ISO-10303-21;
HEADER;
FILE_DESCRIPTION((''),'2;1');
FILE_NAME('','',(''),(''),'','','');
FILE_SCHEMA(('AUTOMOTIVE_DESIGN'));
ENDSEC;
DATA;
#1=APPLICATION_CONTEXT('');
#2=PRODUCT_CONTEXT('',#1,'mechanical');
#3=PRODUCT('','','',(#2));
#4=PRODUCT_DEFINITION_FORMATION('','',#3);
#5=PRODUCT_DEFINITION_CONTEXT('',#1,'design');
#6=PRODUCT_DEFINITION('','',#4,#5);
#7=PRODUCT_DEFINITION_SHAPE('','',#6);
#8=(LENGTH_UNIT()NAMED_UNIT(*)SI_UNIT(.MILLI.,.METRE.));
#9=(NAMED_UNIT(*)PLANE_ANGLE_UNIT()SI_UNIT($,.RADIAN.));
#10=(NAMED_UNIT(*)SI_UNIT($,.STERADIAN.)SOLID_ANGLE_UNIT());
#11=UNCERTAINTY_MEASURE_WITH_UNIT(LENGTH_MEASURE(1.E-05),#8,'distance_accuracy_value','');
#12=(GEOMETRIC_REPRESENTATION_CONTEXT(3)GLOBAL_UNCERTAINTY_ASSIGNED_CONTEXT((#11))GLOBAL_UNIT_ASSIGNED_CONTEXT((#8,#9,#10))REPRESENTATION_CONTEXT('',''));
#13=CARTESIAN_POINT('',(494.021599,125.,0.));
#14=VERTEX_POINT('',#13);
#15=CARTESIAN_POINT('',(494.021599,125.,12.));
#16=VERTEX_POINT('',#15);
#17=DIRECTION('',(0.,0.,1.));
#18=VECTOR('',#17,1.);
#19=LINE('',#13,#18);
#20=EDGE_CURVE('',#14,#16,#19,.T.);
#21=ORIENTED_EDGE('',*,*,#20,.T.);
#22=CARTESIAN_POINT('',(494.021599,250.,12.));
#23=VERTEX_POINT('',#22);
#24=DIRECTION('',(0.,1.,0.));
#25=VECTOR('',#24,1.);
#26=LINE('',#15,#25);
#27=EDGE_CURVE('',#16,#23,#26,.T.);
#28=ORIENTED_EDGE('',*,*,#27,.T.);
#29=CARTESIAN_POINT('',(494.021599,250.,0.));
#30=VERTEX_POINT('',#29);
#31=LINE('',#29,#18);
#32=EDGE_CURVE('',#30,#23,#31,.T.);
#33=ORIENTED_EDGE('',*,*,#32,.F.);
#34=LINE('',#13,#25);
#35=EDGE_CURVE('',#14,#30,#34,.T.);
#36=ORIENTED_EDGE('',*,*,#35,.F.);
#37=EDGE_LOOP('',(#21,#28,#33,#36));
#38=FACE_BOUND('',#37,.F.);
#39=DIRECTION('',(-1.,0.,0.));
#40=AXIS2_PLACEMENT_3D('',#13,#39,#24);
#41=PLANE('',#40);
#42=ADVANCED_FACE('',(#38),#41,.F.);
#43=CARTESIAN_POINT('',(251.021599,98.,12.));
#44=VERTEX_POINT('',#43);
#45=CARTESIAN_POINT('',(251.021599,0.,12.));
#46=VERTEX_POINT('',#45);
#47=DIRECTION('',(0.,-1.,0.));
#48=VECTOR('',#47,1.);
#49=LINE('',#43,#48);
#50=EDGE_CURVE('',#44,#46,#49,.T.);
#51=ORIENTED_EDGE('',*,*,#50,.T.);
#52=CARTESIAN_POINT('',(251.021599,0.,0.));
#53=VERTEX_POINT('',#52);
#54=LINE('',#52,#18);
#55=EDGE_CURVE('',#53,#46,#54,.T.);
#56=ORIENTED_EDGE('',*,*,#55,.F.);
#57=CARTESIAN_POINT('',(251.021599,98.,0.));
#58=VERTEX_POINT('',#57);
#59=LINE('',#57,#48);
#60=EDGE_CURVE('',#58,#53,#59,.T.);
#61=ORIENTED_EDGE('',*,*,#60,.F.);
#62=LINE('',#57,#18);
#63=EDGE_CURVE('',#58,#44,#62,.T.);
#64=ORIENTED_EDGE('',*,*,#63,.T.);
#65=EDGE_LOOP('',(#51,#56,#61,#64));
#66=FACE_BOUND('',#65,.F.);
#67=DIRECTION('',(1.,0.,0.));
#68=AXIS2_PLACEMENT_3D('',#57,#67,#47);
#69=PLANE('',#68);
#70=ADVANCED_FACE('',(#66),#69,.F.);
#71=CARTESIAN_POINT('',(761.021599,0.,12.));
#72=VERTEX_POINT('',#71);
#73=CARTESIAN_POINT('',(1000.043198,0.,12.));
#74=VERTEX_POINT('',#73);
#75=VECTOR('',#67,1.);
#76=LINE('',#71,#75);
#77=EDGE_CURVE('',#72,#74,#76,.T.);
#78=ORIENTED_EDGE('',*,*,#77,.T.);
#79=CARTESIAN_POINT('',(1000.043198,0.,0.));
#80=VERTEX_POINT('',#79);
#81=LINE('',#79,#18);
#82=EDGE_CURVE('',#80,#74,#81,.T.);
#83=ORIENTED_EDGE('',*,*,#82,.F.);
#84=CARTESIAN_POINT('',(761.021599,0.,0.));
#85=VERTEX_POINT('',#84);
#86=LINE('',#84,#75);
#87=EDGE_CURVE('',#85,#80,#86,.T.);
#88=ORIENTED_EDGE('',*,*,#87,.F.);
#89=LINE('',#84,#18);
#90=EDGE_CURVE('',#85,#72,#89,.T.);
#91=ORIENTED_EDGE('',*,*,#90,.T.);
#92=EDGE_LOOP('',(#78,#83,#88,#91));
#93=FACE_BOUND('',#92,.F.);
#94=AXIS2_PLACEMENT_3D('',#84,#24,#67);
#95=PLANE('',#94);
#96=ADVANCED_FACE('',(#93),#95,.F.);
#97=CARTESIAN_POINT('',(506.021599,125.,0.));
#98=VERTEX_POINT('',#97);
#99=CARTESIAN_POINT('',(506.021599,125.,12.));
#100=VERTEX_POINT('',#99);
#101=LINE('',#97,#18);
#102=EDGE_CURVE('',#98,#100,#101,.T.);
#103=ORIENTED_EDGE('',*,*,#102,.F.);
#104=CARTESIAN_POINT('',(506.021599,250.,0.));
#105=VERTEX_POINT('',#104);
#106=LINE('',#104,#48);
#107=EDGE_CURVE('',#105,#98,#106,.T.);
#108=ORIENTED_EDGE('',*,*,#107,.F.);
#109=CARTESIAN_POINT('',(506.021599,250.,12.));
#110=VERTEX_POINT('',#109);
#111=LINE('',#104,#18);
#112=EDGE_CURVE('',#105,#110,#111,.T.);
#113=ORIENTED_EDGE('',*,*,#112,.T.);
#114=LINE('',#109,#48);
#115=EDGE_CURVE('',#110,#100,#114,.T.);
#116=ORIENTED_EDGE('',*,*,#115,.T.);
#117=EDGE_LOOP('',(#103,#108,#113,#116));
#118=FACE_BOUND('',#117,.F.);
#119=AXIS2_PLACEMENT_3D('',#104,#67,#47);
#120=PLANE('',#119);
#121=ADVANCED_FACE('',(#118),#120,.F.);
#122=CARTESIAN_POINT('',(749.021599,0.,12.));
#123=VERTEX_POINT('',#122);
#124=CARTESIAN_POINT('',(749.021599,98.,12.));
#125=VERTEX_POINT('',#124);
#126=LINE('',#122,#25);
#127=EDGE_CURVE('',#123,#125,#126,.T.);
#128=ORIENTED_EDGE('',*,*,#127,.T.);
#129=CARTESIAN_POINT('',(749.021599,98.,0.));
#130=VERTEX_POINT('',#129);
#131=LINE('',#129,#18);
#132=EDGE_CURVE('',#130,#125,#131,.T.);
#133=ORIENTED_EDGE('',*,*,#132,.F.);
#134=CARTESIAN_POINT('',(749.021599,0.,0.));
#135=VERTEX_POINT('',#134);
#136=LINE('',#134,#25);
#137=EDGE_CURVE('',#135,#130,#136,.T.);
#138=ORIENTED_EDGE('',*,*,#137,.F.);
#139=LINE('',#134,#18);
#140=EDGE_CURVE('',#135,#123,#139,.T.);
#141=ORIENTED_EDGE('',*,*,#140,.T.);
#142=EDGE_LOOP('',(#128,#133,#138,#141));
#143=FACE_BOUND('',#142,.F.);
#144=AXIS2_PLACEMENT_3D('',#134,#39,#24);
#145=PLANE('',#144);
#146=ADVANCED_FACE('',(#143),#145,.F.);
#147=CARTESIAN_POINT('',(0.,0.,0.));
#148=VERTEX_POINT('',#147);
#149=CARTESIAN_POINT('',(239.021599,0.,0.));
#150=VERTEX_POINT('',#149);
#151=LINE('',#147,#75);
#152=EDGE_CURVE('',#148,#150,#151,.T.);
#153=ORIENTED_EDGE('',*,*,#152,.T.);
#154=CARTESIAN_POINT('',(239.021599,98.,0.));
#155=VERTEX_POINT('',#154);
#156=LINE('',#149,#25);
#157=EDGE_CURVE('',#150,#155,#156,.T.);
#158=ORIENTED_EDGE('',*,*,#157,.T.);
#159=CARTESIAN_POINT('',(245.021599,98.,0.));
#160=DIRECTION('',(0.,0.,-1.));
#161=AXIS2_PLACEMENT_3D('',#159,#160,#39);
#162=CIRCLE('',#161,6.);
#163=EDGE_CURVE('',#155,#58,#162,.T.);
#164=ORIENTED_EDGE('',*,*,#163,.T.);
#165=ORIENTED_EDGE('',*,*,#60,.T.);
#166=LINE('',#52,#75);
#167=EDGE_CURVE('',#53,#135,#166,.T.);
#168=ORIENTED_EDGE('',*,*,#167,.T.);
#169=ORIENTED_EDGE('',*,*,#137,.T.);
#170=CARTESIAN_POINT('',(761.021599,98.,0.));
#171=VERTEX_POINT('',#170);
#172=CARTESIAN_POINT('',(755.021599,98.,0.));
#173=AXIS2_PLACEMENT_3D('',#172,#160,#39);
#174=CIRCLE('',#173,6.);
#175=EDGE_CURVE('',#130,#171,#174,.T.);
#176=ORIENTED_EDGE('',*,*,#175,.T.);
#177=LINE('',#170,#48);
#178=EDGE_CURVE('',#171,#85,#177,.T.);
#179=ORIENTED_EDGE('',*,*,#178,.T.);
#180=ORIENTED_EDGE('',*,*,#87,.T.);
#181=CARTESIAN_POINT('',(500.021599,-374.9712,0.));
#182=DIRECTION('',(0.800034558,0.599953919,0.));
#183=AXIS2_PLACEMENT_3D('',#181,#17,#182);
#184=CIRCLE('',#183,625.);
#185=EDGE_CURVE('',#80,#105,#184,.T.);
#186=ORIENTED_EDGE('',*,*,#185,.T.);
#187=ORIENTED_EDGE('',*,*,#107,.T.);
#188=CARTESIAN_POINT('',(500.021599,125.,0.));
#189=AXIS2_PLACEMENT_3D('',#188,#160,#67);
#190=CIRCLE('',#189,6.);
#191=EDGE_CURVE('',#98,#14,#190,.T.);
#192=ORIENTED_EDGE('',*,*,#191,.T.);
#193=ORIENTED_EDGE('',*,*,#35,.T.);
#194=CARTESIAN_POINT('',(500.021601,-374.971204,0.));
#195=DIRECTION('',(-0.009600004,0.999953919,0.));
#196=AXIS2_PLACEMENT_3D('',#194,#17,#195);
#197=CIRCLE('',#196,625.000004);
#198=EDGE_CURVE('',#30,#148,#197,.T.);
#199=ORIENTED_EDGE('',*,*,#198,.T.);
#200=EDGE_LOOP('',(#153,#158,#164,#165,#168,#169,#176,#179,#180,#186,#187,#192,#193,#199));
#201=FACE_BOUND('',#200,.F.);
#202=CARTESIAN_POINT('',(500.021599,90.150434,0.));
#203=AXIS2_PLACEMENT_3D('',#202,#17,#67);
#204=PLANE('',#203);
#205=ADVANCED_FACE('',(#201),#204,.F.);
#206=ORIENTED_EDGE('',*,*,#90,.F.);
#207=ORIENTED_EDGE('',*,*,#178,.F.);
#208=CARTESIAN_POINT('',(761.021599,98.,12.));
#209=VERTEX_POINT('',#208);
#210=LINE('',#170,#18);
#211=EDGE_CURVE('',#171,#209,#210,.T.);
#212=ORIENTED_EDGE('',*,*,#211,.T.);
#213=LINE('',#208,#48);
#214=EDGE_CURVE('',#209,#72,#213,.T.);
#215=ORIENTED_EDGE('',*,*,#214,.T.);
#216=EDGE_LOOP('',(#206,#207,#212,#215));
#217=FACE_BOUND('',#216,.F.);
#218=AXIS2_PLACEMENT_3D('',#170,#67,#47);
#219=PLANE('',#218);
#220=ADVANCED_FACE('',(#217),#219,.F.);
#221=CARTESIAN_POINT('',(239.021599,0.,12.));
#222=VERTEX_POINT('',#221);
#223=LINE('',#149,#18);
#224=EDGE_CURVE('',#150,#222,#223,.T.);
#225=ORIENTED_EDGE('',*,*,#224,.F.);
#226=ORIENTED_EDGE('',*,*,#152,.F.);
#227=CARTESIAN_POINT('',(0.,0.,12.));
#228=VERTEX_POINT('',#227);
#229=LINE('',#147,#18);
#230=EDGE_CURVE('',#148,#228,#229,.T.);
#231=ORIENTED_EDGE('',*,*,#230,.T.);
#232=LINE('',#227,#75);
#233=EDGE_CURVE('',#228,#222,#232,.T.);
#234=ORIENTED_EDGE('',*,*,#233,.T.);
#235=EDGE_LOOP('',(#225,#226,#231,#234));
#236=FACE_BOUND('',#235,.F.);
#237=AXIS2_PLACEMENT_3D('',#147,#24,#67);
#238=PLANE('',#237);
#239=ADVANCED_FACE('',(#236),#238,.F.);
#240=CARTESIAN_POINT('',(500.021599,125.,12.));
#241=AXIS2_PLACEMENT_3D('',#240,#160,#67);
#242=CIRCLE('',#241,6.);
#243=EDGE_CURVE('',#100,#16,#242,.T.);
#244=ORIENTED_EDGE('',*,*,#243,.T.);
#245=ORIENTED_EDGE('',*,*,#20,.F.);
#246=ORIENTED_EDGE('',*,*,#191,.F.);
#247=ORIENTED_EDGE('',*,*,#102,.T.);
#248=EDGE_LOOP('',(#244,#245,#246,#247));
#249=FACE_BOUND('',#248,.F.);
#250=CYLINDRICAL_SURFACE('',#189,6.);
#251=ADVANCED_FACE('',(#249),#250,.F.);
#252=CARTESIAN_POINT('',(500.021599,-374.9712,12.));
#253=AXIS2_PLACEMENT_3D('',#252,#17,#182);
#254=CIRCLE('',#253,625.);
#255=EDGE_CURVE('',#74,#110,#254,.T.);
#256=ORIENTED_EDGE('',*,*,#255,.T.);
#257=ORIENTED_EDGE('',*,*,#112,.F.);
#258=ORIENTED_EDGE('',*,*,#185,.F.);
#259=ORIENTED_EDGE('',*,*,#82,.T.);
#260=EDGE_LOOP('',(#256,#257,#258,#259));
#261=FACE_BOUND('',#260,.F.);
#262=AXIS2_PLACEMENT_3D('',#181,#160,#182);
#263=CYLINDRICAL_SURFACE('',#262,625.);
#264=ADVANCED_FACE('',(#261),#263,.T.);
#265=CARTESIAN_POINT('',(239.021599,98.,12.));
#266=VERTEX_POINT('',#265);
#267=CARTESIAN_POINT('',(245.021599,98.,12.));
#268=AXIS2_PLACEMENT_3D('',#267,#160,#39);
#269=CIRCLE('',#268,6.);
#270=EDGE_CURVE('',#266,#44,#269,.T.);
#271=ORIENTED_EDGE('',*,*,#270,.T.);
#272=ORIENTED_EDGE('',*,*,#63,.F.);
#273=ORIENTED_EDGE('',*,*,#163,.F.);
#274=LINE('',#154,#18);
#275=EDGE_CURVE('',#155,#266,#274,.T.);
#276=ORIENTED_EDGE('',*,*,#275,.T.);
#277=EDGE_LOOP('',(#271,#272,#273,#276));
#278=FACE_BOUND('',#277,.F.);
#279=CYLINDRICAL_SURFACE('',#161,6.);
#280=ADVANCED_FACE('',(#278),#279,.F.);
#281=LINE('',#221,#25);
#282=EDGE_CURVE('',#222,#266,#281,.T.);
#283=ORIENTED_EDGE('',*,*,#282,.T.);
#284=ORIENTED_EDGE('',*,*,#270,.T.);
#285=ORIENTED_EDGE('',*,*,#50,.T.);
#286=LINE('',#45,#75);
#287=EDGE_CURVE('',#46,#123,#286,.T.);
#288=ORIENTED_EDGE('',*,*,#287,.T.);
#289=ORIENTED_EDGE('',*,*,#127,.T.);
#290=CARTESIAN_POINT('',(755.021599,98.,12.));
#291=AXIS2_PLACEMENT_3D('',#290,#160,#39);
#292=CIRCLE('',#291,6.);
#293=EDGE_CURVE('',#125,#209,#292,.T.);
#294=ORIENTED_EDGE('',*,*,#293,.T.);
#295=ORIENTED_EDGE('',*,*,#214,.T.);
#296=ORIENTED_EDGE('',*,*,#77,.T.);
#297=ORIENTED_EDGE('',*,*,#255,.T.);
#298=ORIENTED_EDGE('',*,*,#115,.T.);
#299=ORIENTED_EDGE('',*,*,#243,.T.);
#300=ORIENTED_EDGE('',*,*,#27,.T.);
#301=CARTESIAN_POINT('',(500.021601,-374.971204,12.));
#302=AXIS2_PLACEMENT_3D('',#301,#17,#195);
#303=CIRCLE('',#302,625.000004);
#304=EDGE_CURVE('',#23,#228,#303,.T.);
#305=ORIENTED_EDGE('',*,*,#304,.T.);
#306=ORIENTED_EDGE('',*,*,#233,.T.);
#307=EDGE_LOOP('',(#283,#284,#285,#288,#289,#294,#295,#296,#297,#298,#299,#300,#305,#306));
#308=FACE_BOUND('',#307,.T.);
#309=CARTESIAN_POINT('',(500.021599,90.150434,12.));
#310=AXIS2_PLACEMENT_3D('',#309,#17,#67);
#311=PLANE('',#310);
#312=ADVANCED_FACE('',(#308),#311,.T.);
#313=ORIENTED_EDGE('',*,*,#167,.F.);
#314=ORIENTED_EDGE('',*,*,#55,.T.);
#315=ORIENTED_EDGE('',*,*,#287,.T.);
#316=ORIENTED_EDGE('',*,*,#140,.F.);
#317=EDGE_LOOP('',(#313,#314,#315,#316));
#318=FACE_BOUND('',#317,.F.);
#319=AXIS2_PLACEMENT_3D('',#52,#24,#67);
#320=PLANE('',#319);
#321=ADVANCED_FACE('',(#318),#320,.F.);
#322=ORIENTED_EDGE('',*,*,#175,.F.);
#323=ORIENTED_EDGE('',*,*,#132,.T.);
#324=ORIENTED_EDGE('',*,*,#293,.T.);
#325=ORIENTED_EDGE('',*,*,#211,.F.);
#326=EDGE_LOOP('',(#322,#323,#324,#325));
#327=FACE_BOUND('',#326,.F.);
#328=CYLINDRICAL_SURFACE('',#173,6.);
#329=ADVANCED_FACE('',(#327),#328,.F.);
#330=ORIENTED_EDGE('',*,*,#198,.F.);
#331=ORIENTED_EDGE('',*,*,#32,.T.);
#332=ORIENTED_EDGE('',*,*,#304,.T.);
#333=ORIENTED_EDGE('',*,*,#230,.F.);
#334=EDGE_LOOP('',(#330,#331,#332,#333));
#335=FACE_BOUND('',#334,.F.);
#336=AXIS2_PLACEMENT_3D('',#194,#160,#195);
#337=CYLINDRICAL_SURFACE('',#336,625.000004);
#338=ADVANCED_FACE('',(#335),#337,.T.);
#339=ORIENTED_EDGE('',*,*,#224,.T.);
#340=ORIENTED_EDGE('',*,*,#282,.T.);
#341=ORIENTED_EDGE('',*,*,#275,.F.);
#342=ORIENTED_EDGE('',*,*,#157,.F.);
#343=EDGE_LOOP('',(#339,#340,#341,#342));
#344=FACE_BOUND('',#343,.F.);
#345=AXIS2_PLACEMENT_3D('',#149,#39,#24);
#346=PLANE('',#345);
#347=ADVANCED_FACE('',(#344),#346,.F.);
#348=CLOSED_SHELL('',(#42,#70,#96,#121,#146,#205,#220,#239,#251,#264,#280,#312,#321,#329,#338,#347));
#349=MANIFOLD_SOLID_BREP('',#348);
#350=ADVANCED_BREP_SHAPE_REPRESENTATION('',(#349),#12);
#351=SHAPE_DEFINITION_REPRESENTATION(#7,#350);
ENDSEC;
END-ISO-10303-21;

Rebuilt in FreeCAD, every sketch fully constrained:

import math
import FreeCAD as App
import Part
import Sketcher
from FreeCAD import Vector

doc = App.newDocument("Part")
params = doc.addObject("Spreadsheet::Sheet", "Params")
for row, (alias, value) in enumerate([
    ("sketch1_radius", "6 mm"),
    ("sketch1_radius2", "625 mm"),
    ("sketch1_width", "498 mm"),
    ("sketch1_height", "98 mm"),
    ("sketch1_height2", "125 mm"),
    ("pad1_length", "12 mm"),
], start=1):
    params.set(f"A{row}", alias)
    params.set(f"B{row}", "=" + value)
    params.setAlias(f"B{row}", alias)

body = doc.addObject("PartDesign::Body", "Body")

sketch1 = body.newObject("Sketcher::SketchObject", "Sketch")
sketch1.AttachmentSupport = (doc.getObject("XY_Plane"), [""])
sketch1.MapMode = "FlatFace"
sketch1.addGeometry([
    Part.ArcOfCircle(Part.Circle(Vector(500, -375, 0), Vector(0, 0, 1), 625), math.radians(91), math.radians(143)),
    Part.LineSegment(Vector(0, 0, 0), Vector(239, 0, 0)),
    Part.LineSegment(Vector(239, 0, 0), Vector(239, 98, 0)),
    Part.ArcOfCircle(Part.Circle(Vector(245, 98, 0), Vector(0, 0, 1), 6), math.radians(0), math.radians(180)),
    Part.LineSegment(Vector(251, 98, 0), Vector(251, 0, 0)),
    Part.LineSegment(Vector(251, 0, 0), Vector(749, 0, 0)),
    Part.LineSegment(Vector(749, 0, 0), Vector(749, 98, 0)),
    Part.ArcOfCircle(Part.Circle(Vector(755, 98, 0), Vector(0, 0, 1), 6), math.radians(0), math.radians(180)),
    Part.LineSegment(Vector(761, 98, 0), Vector(761, 0, 0)),
    Part.LineSegment(Vector(761, 0, 0), Vector(1000, 0, 0)),
    Part.ArcOfCircle(Part.Circle(Vector(500, -375, 0), Vector(0, 0, 1), 625), math.radians(37), math.radians(89)),
    Part.LineSegment(Vector(506, 250, 0), Vector(506, 125, 0)),
    Part.ArcOfCircle(Part.Circle(Vector(500, 125, 0), Vector(0, 0, 1), 6), math.radians(180), math.radians(360)),
    Part.LineSegment(Vector(494, 125, 0), Vector(494, 250, 0)),
], False)
sketch1.addConstraint([
    Sketcher.Constraint("Coincident", 0, 2, 1, 1),
    Sketcher.Constraint("Coincident", 1, 2, 2, 1),
    Sketcher.Constraint("Tangent", 2, 2, 3, 2),
    Sketcher.Constraint("Tangent", 3, 1, 4, 1),
    Sketcher.Constraint("Coincident", 4, 2, 5, 1),
    Sketcher.Constraint("Coincident", 5, 2, 6, 1),
    Sketcher.Constraint("Tangent", 6, 2, 7, 2),
    Sketcher.Constraint("Tangent", 7, 1, 8, 1),
    Sketcher.Constraint("Coincident", 8, 2, 9, 1),
    Sketcher.Constraint("Coincident", 9, 2, 10, 1),
    Sketcher.Constraint("Coincident", 10, 2, 11, 1),
    Sketcher.Constraint("Tangent", 11, 2, 12, 2),
    Sketcher.Constraint("Tangent", 12, 1, 13, 1),
    Sketcher.Constraint("Coincident", 13, 2, 0, 1),
    Sketcher.Constraint("Horizontal", 1),
    Sketcher.Constraint("Vertical", 2),
    Sketcher.Constraint("Vertical", 4),
    Sketcher.Constraint("Horizontal", 5),
    Sketcher.Constraint("Vertical", 6),
    Sketcher.Constraint("Vertical", 8),
    Sketcher.Constraint("Horizontal", 9),
    Sketcher.Constraint("Vertical", 11),
    Sketcher.Constraint("Vertical", 13),
    Sketcher.Constraint("Coincident", 10, 3, 0, 3),
    Sketcher.Constraint("Equal", 3, 7),
    Sketcher.Constraint("Equal", 7, 12),
    Sketcher.Constraint("PointOnObject", 1, 2, -1),
    Sketcher.Constraint("PointOnObject", 4, 2, -1),
    Sketcher.Constraint("PointOnObject", 8, 2, -1),
    Sketcher.Constraint("Horizontal", 3, 3, 7, 3),
    Sketcher.Constraint("Horizontal", 10, 2, 13, 2),
    Sketcher.Constraint("Vertical", 10, 3, 12, 3),
    Sketcher.Constraint("Equal", 1, 9),
    Sketcher.Constraint("Radius", 3, 6.0),
    Sketcher.Constraint("Radius", 10, 625.0),
    Sketcher.Constraint("DistanceX", 5, 1, 5, 2, 498.0),
    Sketcher.Constraint("DistanceY", 2, 1, 2, 2, 98.0),
    Sketcher.Constraint("DistanceY", 11, 2, 11, 1, 125.0),
    Sketcher.Constraint("DistanceY", -1, 1, 12, 3, 125.0),
    Sketcher.Constraint("DistanceX", -1, 1, 0, 3, 500.021601),
])
sketch1.setExpression("Constraints[33]", "Params.sketch1_radius")
sketch1.setExpression("Constraints[34]", "Params.sketch1_radius2")
sketch1.setExpression("Constraints[35]", "Params.sketch1_width")
sketch1.setExpression("Constraints[36]", "Params.sketch1_height")
sketch1.setExpression("Constraints[37]", "Params.sketch1_height2")
pad1 = body.newObject("PartDesign::Pad", "Pad")
pad1.Profile = sketch1
pad1.setExpression("Length", "Params.pad1_length")

doc.recompute()
